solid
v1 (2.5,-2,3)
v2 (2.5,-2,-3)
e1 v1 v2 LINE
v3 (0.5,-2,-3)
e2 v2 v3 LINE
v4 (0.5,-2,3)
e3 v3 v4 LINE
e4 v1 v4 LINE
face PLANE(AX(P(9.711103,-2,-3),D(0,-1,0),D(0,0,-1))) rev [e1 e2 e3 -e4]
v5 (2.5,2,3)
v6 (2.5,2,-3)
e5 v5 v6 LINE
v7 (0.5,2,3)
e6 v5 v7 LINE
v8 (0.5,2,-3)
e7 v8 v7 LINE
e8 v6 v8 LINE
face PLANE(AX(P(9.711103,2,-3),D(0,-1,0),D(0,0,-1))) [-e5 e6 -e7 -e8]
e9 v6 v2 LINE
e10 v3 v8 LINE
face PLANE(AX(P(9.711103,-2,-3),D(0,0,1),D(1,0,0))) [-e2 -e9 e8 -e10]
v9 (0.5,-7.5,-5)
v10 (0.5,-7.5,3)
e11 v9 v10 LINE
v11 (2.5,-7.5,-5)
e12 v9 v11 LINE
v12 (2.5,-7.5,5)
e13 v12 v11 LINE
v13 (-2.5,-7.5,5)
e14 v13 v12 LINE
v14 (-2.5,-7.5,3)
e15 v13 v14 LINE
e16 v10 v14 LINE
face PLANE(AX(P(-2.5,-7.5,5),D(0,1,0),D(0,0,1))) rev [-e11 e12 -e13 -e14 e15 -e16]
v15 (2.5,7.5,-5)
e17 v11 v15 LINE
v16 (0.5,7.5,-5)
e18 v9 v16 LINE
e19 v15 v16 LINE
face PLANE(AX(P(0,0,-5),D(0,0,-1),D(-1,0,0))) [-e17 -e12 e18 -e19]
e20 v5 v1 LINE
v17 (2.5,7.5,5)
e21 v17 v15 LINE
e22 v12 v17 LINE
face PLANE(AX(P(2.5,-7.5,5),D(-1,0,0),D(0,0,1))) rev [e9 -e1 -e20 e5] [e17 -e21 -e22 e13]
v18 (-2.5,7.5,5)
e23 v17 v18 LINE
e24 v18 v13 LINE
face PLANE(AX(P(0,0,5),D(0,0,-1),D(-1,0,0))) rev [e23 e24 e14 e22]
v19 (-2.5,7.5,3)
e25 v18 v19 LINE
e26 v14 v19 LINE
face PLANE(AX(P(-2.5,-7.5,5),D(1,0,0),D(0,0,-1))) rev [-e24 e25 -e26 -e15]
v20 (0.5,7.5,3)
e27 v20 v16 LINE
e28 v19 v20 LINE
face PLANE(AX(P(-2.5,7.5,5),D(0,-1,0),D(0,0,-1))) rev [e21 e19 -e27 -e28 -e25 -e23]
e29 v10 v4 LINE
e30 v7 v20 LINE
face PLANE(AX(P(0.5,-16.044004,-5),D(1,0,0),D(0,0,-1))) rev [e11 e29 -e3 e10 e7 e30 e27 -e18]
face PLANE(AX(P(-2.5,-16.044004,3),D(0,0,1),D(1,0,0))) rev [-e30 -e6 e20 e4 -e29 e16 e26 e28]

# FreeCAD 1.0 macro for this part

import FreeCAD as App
import Part
import Sketcher
Q = App.Units.Quantity

doc = App.newDocument("Part")
body = doc.addObject("PartDesign::Body", "Body")

# Sketch on XY plane
sketch1 = body.newObject("Sketcher::SketchObject", "Sketch")
sketch1.AttachmentSupport = (doc.getObject("XY_Plane"), [""])
sketch1.MapMode = "FlatFace"
sketch1.addGeometry(Part.LineSegment(App.Vector(-2, 8, 0), App.Vector(-2, -8, 0)), False)
sketch1.addGeometry(Part.LineSegment(App.Vector(-2, -8, 0), App.Vector(2, -8, 0)), False)
sketch1.addGeometry(Part.LineSegment(App.Vector(2, -8, 0), App.Vector(2, 8, 0)), False)
sketch1.addGeometry(Part.LineSegment(App.Vector(2, 8, 0), App.Vector(-2, 8, 0)), False)
sketch1.addConstraint(Sketcher.Constraint("Coincident", 0, 2, 1, 1))
sketch1.addConstraint(Sketcher.Constraint("Coincident", 1, 2, 2, 1))
sketch1.addConstraint(Sketcher.Constraint("Coincident", 2, 2, 3, 1))
sketch1.addConstraint(Sketcher.Constraint("Coincident", 3, 2, 0, 1))
sketch1.addConstraint(Sketcher.Constraint("Vertical", 0))
sketch1.addConstraint(Sketcher.Constraint("Horizontal", 1))
sketch1.addConstraint(Sketcher.Constraint("Vertical", 2))
sketch1.addConstraint(Sketcher.Constraint("Horizontal", 3))
sketch1.addConstraint(Sketcher.Constraint("Symmetric", 0, 2, 2, 2, -1, 1))
sketch1.addConstraint(Sketcher.Constraint("DistanceX", 1, 1, 1, 2, Q("5 mm")))
sketch1.addConstraint(Sketcher.Constraint("DistanceY", 0, 2, 0, 1, Q("15 mm")))
pad1 = body.newObject("PartDesign::Pad", "Pad")
pad1.Profile = sketch1
pad1.Length = 10
pad1.Midplane = True

# Sketch on XZ plane
sketch2 = body.newObject("Sketcher::SketchObject", "Sketch001")
sketch2.AttachmentSupport = (doc.getObject("XZ_Plane"), [""])
sketch2.MapMode = "FlatFace"
sketch2.AttachmentOffset = App.Placement(App.Vector(0, 0, -7.5), App.Rotation())
sketch2.addGeometry(Part.LineSegment(App.Vector(-2.5, -5, 0), App.Vector(-2.5, 3, 0)), False)
sketch2.addGeometry(Part.LineSegment(App.Vector(-2.5, 3, 0), App.Vector(0.5, 3, 0)), False)
sketch2.addGeometry(Part.LineSegment(App.Vector(0.5, 3, 0), App.Vector(0.5, -5, 0)), False)
sketch2.addGeometry(Part.LineSegment(App.Vector(0.5, -5, 0), App.Vector(-2.5, -5, 0)), False)
sketch2.addConstraint(Sketcher.Constraint("Coincident", 0, 2, 1, 1))
sketch2.addConstraint(Sketcher.Constraint("Coincident", 1, 2, 2, 1))
sketch2.addConstraint(Sketcher.Constraint("Coincident", 2, 2, 3, 1))
sketch2.addConstraint(Sketcher.Constraint("Coincident", 3, 2, 0, 1))
sketch2.addConstraint(Sketcher.Constraint("Vertical", 0))
sketch2.addConstraint(Sketcher.Constraint("Horizontal", 1))
sketch2.addConstraint(Sketcher.Constraint("Vertical", 2))
sketch2.addConstraint(Sketcher.Constraint("Horizontal", 3))
sketch2.addConstraint(Sketcher.Constraint("DistanceX", 1, 1, 1, 2, Q("3 mm")))
sketch2.addConstraint(Sketcher.Constraint("DistanceY", 0, 1, 0, 2, Q("8 mm")))
sketch2.addConstraint(Sketcher.Constraint("DistanceY", -1, 1, 0, 2, Q("3 mm")))
sketch2.addConstraint(Sketcher.Constraint("DistanceX", 0, 2, -1, 1, Q("2.5 mm")))
pocket1 = body.newObject("PartDesign::Pocket", "Pocket")
pocket1.Profile = sketch2
pocket1.Length = 15
pocket1.Reversed = True

# Sketch on YZ plane
sketch3 = body.newObject("Sketcher::SketchObject", "Sketch002")
sketch3.AttachmentSupport = (doc.getObject("YZ_Plane"), [""])
sketch3.MapMode = "FlatFace"
sketch3.AttachmentOffset = App.Placement(App.Vector(0, 0, 0.5), App.Rotation())
sketch3.addGeometry(Part.LineSegment(App.Vector(2, -3, 0), App.Vector(-2, -3, 0)), False)
sketch3.addGeometry(Part.LineSegment(App.Vector(-2, -3, 0), App.Vector(-2, 3, 0)), False)
sketch3.addGeometry(Part.LineSegment(App.Vector(-2, 3, 0), App.Vector(2, 3, 0)), False)
sketch3.addGeometry(Part.LineSegment(App.Vector(2, 3, 0), App.Vector(2, -3, 0)), False)
sketch3.addConstraint(Sketcher.Constraint("Coincident", 0, 2, 1, 1))
sketch3.addConstraint(Sketcher.Constraint("Coincident", 1, 2, 2, 1))
sketch3.addConstraint(Sketcher.Constraint("Coincident", 2, 2, 3, 1))
sketch3.addConstraint(Sketcher.Constraint("Coincident", 3, 2, 0, 1))
sketch3.addConstraint(Sketcher.Constraint("Horizontal", 0))
sketch3.addConstraint(Sketcher.Constraint("Vertical", 1))
sketch3.addConstraint(Sketcher.Constraint("Horizontal", 2))
sketch3.addConstraint(Sketcher.Constraint("Vertical", 3))
sketch3.addConstraint(Sketcher.Constraint("Symmetric", 0, 2, 2, 2, -1, 1))
sketch3.addConstraint(Sketcher.Constraint("DistanceX", 0, 2, 0, 1, Q("4 mm")))
sketch3.addConstraint(Sketcher.Constraint("DistanceY", 1, 1, 1, 2, Q("6 mm")))
pocket2 = body.newObject("PartDesign::Pocket", "Pocket001")
pocket2.Profile = sketch3
pocket2.Length = 2
pocket2.Reversed = True

doc.recompute()
